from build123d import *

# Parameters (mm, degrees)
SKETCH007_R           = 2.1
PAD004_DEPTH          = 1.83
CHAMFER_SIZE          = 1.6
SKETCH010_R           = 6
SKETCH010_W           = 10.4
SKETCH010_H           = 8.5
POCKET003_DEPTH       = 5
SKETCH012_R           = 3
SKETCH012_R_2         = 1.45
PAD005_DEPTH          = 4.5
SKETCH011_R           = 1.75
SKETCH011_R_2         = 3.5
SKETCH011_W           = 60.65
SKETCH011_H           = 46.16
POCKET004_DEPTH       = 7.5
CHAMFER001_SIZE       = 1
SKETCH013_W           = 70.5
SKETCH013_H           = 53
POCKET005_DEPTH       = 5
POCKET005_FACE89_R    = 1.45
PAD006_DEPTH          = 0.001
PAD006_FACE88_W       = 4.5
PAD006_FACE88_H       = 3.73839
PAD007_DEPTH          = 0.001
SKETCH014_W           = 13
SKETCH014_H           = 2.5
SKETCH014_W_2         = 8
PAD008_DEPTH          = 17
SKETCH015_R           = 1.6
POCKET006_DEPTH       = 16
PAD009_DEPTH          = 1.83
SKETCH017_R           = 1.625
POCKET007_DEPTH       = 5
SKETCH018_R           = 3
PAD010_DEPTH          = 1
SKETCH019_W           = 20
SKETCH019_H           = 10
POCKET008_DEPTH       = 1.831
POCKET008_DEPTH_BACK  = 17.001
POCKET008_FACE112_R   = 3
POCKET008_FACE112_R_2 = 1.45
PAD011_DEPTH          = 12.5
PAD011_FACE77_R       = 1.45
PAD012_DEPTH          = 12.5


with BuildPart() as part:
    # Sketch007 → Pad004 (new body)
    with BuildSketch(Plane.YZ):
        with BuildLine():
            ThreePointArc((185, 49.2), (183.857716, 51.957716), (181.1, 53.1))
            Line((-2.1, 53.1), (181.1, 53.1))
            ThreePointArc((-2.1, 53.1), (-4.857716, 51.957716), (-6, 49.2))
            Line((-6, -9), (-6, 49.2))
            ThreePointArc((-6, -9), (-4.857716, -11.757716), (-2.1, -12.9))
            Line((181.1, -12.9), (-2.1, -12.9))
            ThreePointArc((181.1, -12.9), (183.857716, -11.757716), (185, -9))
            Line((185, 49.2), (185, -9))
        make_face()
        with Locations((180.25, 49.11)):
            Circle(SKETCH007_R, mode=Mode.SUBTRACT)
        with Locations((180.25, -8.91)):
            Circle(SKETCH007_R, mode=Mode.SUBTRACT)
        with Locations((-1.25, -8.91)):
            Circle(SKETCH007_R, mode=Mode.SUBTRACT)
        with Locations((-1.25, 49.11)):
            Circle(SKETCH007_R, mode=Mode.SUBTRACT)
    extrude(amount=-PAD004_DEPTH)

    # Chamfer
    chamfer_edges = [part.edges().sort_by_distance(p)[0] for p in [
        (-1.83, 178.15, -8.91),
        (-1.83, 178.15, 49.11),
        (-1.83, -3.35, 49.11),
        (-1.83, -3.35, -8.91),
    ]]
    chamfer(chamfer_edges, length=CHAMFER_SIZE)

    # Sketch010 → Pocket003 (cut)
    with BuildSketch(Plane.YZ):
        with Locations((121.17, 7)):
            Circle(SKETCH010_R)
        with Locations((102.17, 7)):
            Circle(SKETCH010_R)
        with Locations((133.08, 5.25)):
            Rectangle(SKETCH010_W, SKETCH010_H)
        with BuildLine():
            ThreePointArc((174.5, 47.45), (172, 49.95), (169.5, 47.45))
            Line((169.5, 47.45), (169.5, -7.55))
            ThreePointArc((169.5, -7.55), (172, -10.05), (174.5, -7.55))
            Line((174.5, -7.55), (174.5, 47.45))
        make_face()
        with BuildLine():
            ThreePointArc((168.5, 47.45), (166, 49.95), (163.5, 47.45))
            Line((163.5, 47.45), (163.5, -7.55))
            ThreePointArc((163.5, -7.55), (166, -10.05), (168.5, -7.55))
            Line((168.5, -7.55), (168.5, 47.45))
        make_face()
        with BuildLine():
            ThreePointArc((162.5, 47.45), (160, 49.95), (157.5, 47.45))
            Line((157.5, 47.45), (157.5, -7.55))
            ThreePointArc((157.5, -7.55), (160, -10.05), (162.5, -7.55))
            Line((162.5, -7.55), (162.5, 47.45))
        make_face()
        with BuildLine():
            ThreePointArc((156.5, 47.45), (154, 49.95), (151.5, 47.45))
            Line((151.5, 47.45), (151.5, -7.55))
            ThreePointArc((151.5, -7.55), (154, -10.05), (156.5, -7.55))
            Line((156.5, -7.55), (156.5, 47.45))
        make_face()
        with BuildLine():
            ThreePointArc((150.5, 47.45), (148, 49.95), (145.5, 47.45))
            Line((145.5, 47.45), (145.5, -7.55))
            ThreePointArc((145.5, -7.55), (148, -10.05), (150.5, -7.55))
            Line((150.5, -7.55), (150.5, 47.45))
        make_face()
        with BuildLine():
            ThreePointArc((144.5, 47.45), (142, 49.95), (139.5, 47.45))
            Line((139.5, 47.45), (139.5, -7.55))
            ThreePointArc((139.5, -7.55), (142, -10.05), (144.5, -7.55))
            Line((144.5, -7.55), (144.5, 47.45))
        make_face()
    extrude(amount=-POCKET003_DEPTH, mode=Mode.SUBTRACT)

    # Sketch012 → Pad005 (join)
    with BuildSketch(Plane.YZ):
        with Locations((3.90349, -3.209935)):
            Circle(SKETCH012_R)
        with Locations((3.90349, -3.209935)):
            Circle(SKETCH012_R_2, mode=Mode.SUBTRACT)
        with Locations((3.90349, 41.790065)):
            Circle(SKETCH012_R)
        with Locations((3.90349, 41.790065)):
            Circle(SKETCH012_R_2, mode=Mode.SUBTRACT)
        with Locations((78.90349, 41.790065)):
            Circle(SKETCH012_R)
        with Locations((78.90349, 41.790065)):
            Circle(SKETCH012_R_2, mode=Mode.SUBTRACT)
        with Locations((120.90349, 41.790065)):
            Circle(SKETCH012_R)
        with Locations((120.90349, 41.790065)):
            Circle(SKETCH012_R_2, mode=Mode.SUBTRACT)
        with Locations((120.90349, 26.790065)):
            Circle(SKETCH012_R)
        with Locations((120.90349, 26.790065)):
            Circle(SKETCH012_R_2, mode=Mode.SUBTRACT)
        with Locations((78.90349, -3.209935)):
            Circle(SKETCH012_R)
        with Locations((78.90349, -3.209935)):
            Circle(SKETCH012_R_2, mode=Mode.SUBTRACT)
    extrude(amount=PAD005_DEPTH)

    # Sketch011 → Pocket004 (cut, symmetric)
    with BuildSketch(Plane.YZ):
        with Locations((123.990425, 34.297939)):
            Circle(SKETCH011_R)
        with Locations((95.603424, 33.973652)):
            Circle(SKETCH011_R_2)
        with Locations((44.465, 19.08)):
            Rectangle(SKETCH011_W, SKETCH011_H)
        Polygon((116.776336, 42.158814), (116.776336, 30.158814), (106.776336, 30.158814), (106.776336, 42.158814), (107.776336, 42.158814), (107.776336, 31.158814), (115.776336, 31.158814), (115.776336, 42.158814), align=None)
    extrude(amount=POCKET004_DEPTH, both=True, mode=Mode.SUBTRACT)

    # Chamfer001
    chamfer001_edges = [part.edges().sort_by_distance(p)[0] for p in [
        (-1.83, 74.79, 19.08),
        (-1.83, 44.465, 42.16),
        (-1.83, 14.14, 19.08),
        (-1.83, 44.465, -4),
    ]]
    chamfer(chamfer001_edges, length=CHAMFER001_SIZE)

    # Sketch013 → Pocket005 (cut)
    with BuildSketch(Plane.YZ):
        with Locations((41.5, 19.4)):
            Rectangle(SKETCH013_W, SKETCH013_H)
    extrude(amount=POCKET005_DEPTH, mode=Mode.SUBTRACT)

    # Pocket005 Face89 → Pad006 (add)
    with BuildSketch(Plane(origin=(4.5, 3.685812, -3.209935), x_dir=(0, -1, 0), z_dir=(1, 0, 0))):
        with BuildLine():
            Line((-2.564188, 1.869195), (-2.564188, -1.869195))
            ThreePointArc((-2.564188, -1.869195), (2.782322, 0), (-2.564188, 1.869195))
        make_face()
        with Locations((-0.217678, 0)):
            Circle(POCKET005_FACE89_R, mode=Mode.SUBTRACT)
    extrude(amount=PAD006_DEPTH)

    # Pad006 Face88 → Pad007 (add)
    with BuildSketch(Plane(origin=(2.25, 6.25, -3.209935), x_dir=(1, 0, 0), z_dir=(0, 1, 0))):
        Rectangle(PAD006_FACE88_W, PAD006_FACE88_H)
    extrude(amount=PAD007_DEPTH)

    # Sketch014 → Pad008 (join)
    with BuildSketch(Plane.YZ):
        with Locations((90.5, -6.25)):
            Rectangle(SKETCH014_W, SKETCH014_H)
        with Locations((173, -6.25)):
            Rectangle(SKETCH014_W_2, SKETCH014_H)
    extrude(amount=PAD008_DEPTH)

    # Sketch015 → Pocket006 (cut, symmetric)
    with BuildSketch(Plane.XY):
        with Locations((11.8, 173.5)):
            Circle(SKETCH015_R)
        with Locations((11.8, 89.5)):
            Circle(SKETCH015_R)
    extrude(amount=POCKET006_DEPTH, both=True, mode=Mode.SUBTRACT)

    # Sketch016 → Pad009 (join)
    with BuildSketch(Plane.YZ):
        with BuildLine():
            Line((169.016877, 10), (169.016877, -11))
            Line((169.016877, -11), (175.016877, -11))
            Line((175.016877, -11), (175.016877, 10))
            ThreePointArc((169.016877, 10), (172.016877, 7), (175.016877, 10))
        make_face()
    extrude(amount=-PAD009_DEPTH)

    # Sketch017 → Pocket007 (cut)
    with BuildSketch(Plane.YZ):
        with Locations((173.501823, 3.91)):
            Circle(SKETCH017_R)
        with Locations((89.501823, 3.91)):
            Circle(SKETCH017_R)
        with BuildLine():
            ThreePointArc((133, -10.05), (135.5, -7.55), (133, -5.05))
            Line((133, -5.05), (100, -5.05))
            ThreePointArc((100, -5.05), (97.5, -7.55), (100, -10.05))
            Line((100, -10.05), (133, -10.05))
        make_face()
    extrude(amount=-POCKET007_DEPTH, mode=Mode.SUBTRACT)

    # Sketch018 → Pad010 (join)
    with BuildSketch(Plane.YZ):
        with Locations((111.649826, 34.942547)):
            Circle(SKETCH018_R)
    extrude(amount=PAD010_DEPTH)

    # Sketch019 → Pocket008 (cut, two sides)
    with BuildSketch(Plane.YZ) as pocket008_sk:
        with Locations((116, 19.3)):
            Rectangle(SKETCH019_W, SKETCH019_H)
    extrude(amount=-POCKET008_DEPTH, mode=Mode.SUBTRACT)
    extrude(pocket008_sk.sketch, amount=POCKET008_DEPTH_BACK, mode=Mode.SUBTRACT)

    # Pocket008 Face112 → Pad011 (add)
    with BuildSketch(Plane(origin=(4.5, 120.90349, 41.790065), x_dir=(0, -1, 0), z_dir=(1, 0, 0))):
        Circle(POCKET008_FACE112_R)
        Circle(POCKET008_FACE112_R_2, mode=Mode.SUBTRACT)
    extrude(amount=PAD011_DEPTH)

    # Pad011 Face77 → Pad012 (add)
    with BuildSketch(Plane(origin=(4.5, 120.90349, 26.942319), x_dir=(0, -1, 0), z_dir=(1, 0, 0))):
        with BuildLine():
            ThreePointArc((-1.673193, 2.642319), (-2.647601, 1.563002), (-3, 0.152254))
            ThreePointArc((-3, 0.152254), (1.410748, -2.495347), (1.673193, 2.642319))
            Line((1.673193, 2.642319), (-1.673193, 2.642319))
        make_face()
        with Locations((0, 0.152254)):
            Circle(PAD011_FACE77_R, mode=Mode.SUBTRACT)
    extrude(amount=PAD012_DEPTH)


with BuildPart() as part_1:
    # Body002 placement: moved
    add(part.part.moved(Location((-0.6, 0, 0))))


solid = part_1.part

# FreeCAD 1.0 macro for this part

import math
import FreeCAD as App
import Part
import Sketcher
from FreeCAD import Vector


def edges_at(feature, points):
    """Names of the edges that pass closest to the given points."""
    edges = feature.Shape.Edges
    near = lambda p: min(range(len(edges)), key=lambda i: edges[i].distToShape(Part.Vertex(*p))[0])
    return sorted({f"Edge{near(p) + 1}" for p in points})

doc = App.newDocument("Part")
body = doc.addObject("PartDesign::Body", "Body")

# Sketch on YZ plane
sketch1 = body.newObject("Sketcher::SketchObject", "Sketch")
sketch1.AttachmentSupport = (doc.getObject("YZ_Plane"), [""])
sketch1.MapMode = "FlatFace"
sketch1.addGeometry([
    Part.ArcOfCircle(Part.Circle(Vector(181.1, 49.2, 0), Vector(0, 0, 1), 3.9), math.radians(0), math.radians(90)),  # 0
    Part.LineSegment(Vector(181.1, 53.1, 0), Vector(-2.1, 53.1, 0)),  # 1
    Part.ArcOfCircle(Part.Circle(Vector(-2.1, 49.2, 0), Vector(0, 0, 1), 3.9), math.radians(90), math.radians(180)),  # 2
    Part.LineSegment(Vector(-6, 49.2, 0), Vector(-6, -9, 0)),  # 3
    Part.ArcOfCircle(Part.Circle(Vector(-2.1, -9, 0), Vector(0, 0, 1), 3.9), math.radians(-180), math.radians(-90)),  # 4
    Part.LineSegment(Vector(-2.1, -12.9, 0), Vector(181.1, -12.9, 0)),  # 5
    Part.ArcOfCircle(Part.Circle(Vector(181.1, -9, 0), Vector(0, 0, 1), 3.9), math.radians(-90), math.radians(0)),  # 6
    Part.LineSegment(Vector(185, -9, 0), Vector(185, 49.2, 0)),  # 7
    Part.Circle(Vector(-1.2, -8.9, 0), Vector(0, 0, 1), 2.1),  # 8
    Part.Circle(Vector(180.2, -8.9, 0), Vector(0, 0, 1), 2.1),  # 9
    Part.Circle(Vector(-1.2, 49.1, 0), Vector(0, 0, 1), 2.1),  # 10
    Part.Circle(Vector(180.2, 49.1, 0), Vector(0, 0, 1), 2.1),  # 11
], False)
sketch1.addConstraint([
    Sketcher.Constraint("Tangent", 0, 2, 1, 1),
    Sketcher.Constraint("Tangent", 1, 2, 2, 1),
    Sketcher.Constraint("Tangent", 2, 2, 3, 1),
    Sketcher.Constraint("Tangent", 3, 2, 4, 1),
    Sketcher.Constraint("Tangent", 4, 2, 5, 1),
    Sketcher.Constraint("Tangent", 5, 2, 6, 1),
    Sketcher.Constraint("Tangent", 6, 2, 7, 1),
    Sketcher.Constraint("Tangent", 7, 2, 0, 1),
    Sketcher.Constraint("Horizontal", 1),
    Sketcher.Constraint("Vertical", 3),
    Sketcher.Constraint("Horizontal", 5),
    Sketcher.Constraint("Vertical", 7),
    Sketcher.Constraint("Equal", 0, 2),
    Sketcher.Constraint("Equal", 2, 4),
    Sketcher.Constraint("Equal", 4, 6),
    Sketcher.Constraint("Equal", 8, 9),
    Sketcher.Constraint("Equal", 9, 10),
    Sketcher.Constraint("Equal", 10, 11),
    Sketcher.Constraint("Horizontal", 8, 3, 9, 3),
    Sketcher.Constraint("Horizontal", 10, 3, 11, 3),
    Sketcher.Constraint("Vertical", 8, 3, 10, 3),
    Sketcher.Constraint("Vertical", 9, 3, 11, 3),
    Sketcher.Constraint("Diameter", 8, 4.2),
    Sketcher.Constraint("Radius", 0, 3.900002),
    Sketcher.Constraint("DistanceX", 1, 2, 1, 1, 183.2),
    Sketcher.Constraint("DistanceY", 3, 2, 3, 1, 58.2),
    Sketcher.Constraint("DistanceY", 4, 3, -1, 1, 8.999998),
    Sketcher.Constraint("DistanceX", 2, 2, -1, 1, 6.0),
    Sketcher.Constraint("DistanceX", 8, 3, 9, 3, 181.5),
    Sketcher.Constraint("DistanceX", 8, 3, -1, 1, 1.25),
    Sketcher.Constraint("DistanceY", 8, 3, -1, 1, 8.91),
    Sketcher.Constraint("DistanceY", -1, 1, 10, 3, 49.11),
])
pad1 = body.newObject("PartDesign::Pad", "Pad")
pad1.Profile = sketch1
pad1.Length = 1.83
pad1.Reversed = True
doc.recompute()

chamfer = body.newObject("PartDesign::Chamfer", "Chamfer")
chamfer.Base = (pad1, edges_at(pad1, [
    (-1.83, 178.15, -8.91),
    (-1.83, 178.15, 49.11),
    (-1.83, -3.35, 49.11),
    (-1.83, -3.35, -8.91),
]))
chamfer.Size = 1.6

# Sketch on YZ plane
sketch2 = body.newObject("Sketcher::SketchObject", "Sketch001")
sketch2.AttachmentSupport = (doc.getObject("YZ_Plane"), [""])
sketch2.MapMode = "FlatFace"
sketch2.addGeometry([
    Part.Circle(Vector(121.2, 7, 0), Vector(0, 0, 1), 6),  # 0
    Part.Circle(Vector(102.2, 7, 0), Vector(0, 0, 1), 6),  # 1
    Part.LineSegment(Vector(127.9, 9.5, 0), Vector(127.9, 1, 0)),  # 2
    Part.LineSegment(Vector(127.9, 1, 0), Vector(138.3, 1, 0)),  # 3
    Part.LineSegment(Vector(138.3, 1, 0), Vector(138.3, 9.5, 0)),  # 4
    Part.LineSegment(Vector(138.3, 9.5, 0), Vector(127.9, 9.5, 0)),  # 5
    Part.ArcOfCircle(Part.Circle(Vector(172, 47.5, 0), Vector(0, 0, 1), 2.5), math.radians(0), math.radians(180)),  # 6
    Part.LineSegment(Vector(169.5, 47.5, 0), Vector(169.5, -7.5, 0)),  # 7
    Part.ArcOfCircle(Part.Circle(Vector(172, -7.5, 0), Vector(0, 0, 1), 2.5), math.radians(180), math.radians(360)),  # 8
    Part.LineSegment(Vector(174.5, -7.5, 0), Vector(174.5, 47.5, 0)),  # 9
    Part.ArcOfCircle(Part.Circle(Vector(166, 47.5, 0), Vector(0, 0, 1), 2.5), math.radians(0), math.radians(180)),  # 10
    Part.LineSegment(Vector(163.5, 47.5, 0), Vector(163.5, -7.5, 0)),  # 11
    Part.ArcOfCircle(Part.Circle(Vector(166, -7.5, 0), Vector(0, 0, 1), 2.5), math.radians(180), math.radians(360)),  # 12
    Part.LineSegment(Vector(168.5, -7.5, 0), Vector(168.5, 47.5, 0)),  # 13
    Part.ArcOfCircle(Part.Circle(Vector(160, 47.5, 0), Vector(0, 0, 1), 2.5), math.radians(0), math.radians(180)),  # 14
    Part.LineSegment(Vector(157.5, 47.5, 0), Vector(157.5, -7.5, 0)),  # 15
    Part.ArcOfCircle(Part.Circle(Vector(160, -7.5, 0), Vector(0, 0, 1), 2.5), math.radians(180), math.radians(360)),  # 16
    Part.LineSegment(Vector(162.5, -7.5, 0), Vector(162.5, 47.5, 0)),  # 17
    Part.ArcOfCircle(Part.Circle(Vector(154, 47.5, 0), Vector(0, 0, 1), 2.5), math.radians(0), math.radians(180)),  # 18
    Part.LineSegment(Vector(151.5, 47.5, 0), Vector(151.5, -7.5, 0)),  # 19
    Part.ArcOfCircle(Part.Circle(Vector(154, -7.5, 0), Vector(0, 0, 1), 2.5), math.radians(180), math.radians(360)),  # 20
    Part.LineSegment(Vector(156.5, -7.5, 0), Vector(156.5, 47.5, 0)),  # 21
    Part.ArcOfCircle(Part.Circle(Vector(148, 47.5, 0), Vector(0, 0, 1), 2.5), math.radians(0), math.radians(180)),  # 22
    Part.LineSegment(Vector(145.5, 47.5, 0), Vector(145.5, -7.5, 0)),  # 23
    Part.ArcOfCircle(Part.Circle(Vector(148, -7.5, 0), Vector(0, 0, 1), 2.5), math.radians(180), math.radians(360)),  # 24
    Part.LineSegment(Vector(150.5, -7.5, 0), Vector(150.5, 47.5, 0)),  # 25
    Part.ArcOfCircle(Part.Circle(Vector(142, 47.5, 0), Vector(0, 0, 1), 2.5), math.radians(0), math.radians(180)),  # 26
    Part.LineSegment(Vector(139.5, 47.5, 0), Vector(139.5, -7.5, 0)),  # 27
    Part.ArcOfCircle(Part.Circle(Vector(142, -7.5, 0), Vector(0, 0, 1), 2.5), math.radians(180), math.radians(360)),  # 28
    Part.LineSegment(Vector(144.5, -7.5, 0), Vector(144.5, 47.5, 0)),  # 29
], False)
sketch2.addConstraint([
    Sketcher.Constraint("Coincident", 2, 2, 3, 1),
    Sketcher.Constraint("Coincident", 3, 2, 4, 1),
    Sketcher.Constraint("Coincident", 4, 2, 5, 1),
    Sketcher.Constraint("Coincident", 5, 2, 2, 1),
    Sketcher.Constraint("Tangent", 6, 2, 7, 1),
    Sketcher.Constraint("Tangent", 7, 2, 8, 1),
    Sketcher.Constraint("Tangent", 8, 2, 9, 1),
    Sketcher.Constraint("Tangent", 9, 2, 6, 1),
    Sketcher.Constraint("Tangent", 10, 2, 11, 1),
    Sketcher.Constraint("Tangent", 11, 2, 12, 1),
    Sketcher.Constraint("Tangent", 12, 2, 13, 1),
    Sketcher.Constraint("Tangent", 13, 2, 10, 1),
    Sketcher.Constraint("Tangent", 14, 2, 15, 1),
    Sketcher.Constraint("Tangent", 15, 2, 16, 1),
    Sketcher.Constraint("Tangent", 16, 2, 17, 1),
    Sketcher.Constraint("Tangent", 17, 2, 14, 1),
    Sketcher.Constraint("Tangent", 18, 2, 19, 1),
    Sketcher.Constraint("Tangent", 19, 2, 20, 1),
    Sketcher.Constraint("Tangent", 20, 2, 21, 1),
    Sketcher.Constraint("Tangent", 21, 2, 18, 1),
    Sketcher.Constraint("Tangent", 22, 2, 23, 1),
    Sketcher.Constraint("Tangent", 23, 2, 24, 1),
    Sketcher.Constraint("Tangent", 24, 2, 25, 1),
    Sketcher.Constraint("Tangent", 25, 2, 22, 1),
    Sketcher.Constraint("Tangent", 26, 2, 27, 1),
    Sketcher.Constraint("Tangent", 27, 2, 28, 1),
    Sketcher.Constraint("Tangent", 28, 2, 29, 1),
    Sketcher.Constraint("Tangent", 29, 2, 26, 1),
    Sketcher.Constraint("Vertical", 2),
    Sketcher.Constraint("Horizontal", 3),
    Sketcher.Constraint("Vertical", 4),
    Sketcher.Constraint("Horizontal", 5),
    Sketcher.Constraint("Vertical", 7),
    Sketcher.Constraint("Vertical", 9),
    Sketcher.Constraint("Vertical", 11),
    Sketcher.Constraint("Vertical", 13),
    Sketcher.Constraint("Vertical", 15),
    Sketcher.Constraint("Vertical", 17),
    Sketcher.Constraint("Vertical", 19),
    Sketcher.Constraint("Vertical", 21),
    Sketcher.Constraint("Vertical", 23),
    Sketcher.Constraint("Vertical", 25),
    Sketcher.Constraint("Vertical", 27),
    Sketcher.Constraint("Vertical", 29),
    Sketcher.Constraint("Equal", 0, 1),
    Sketcher.Constraint("Equal", 8, 10),
    Sketcher.Constraint("Equal", 12, 14),
    Sketcher.Constraint("Equal", 16, 18),
    Sketcher.Constraint("Equal", 20, 22),
    Sketcher.Constraint("Equal", 24, 26),
    Sketcher.Constraint("Horizontal", 0, 3, 1, 3),
    Sketcher.Constraint("Horizontal", 6, 3, 10, 3),
    Sketcher.Constraint("Horizontal", 8, 3, 12, 3),
    Sketcher.Constraint("Horizontal", 10, 3, 14, 3),
    Sketcher.Constraint("Horizontal", 12, 3, 16, 3),
    Sketcher.Constraint("Horizontal", 14, 3, 18, 3),
    Sketcher.Constraint("Horizontal", 16, 3, 20, 3),
    Sketcher.Constraint("Horizontal", 18, 3, 22, 3),
    Sketcher.Constraint("Horizontal", 20, 3, 24, 3),
    Sketcher.Constraint("Horizontal", 22, 3, 26, 3),
    Sketcher.Constraint("Horizontal", 24, 3, 28, 3),
    Sketcher.Constraint("Diameter", 0, 12.0),
    Sketcher.Constraint("Radius", 6, 2.5),
    Sketcher.Constraint("DistanceY", 7, 2, 7, 1, 55.0),
    Sketcher.Constraint("DistanceX", 3, 1, 3, 2, 10.4),
    Sketcher.Constraint("DistanceY", 2, 2, 2, 1, 8.5),
    Sketcher.Constraint("DistanceY", -1, 1, 0, 3, 7.0),
    Sketcher.Constraint("DistanceX", -1, 1, 6, 3, 172.0),
    Sketcher.Constraint("DistanceX", -1, 1, 10, 3, 166.0),
    Sketcher.Constraint("DistanceX", -1, 1, 14, 3, 160.0),
    Sketcher.Constraint("DistanceX", -1, 1, 18, 3, 154.0),
    Sketcher.Constraint("DistanceX", -1, 1, 22, 3, 148.0),
    Sketcher.Constraint("DistanceX", -1, 1, 26, 3, 142.0),
    Sketcher.Constraint("DistanceY", -1, 1, 2, 2, 1.0),
    Sketcher.Constraint("DistanceX", 1, 3, 0, 3, 19.0),
    Sketcher.Constraint("DistanceX", -1, 1, 0, 3, 121.17),
    Sketcher.Constraint("DistanceY", -1, 1, 6, 3, 47.45),
    Sketcher.Constraint("DistanceX", -1, 1, 2, 2, 127.88),
])
pocket1 = body.newObject("PartDesign::Pocket", "Pocket")
pocket1.Profile = sketch2
pocket1.Length = 5

# Sketch on YZ plane
sketch3 = body.newObject("Sketcher::SketchObject", "Sketch002")
sketch3.AttachmentSupport = (doc.getObject("YZ_Plane"), [""])
sketch3.MapMode = "FlatFace"
sketch3.addGeometry([
    Part.Circle(Vector(3.9, -3.2, 0), Vector(0, 0, 1), 3),  # 0
    Part.Circle(Vector(3.9, -3.2, 0), Vector(0, 0, 1), 1.4),  # 1
    Part.Circle(Vector(3.9, 41.8, 0), Vector(0, 0, 1), 3),  # 2
    Part.Circle(Vector(3.9, 41.8, 0), Vector(0, 0, 1), 1.4),  # 3
    Part.Circle(Vector(78.9, 41.8, 0), Vector(0, 0, 1), 3),  # 4
    Part.Circle(Vector(78.9, 41.8, 0), Vector(0, 0, 1), 1.4),  # 5
    Part.Circle(Vector(120.9, 41.8, 0), Vector(0, 0, 1), 3),  # 6
    Part.Circle(Vector(120.9, 41.8, 0), Vector(0, 0, 1), 1.4),  # 7
    Part.Circle(Vector(120.9, 26.8, 0), Vector(0, 0, 1), 3),  # 8
    Part.Circle(Vector(120.9, 26.8, 0), Vector(0, 0, 1), 1.4),  # 9
    Part.Circle(Vector(78.9, -3.2, 0), Vector(0, 0, 1), 3),  # 10
    Part.Circle(Vector(78.9, -3.2, 0), Vector(0, 0, 1), 1.4),  # 11
], False)
sketch3.addConstraint([
    Sketcher.Constraint("Coincident", 1, 3, 0, 3),
    Sketcher.Constraint("Coincident", 3, 3, 2, 3),
    Sketcher.Constraint("Coincident", 5, 3, 4, 3),
    Sketcher.Constraint("Coincident", 7, 3, 6, 3),
    Sketcher.Constraint("Coincident", 9, 3, 8, 3),
    Sketcher.Constraint("Coincident", 11, 3, 10, 3),
    Sketcher.Constraint("Equal", 0, 2),
    Sketcher.Constraint("Equal", 1, 3),
    Sketcher.Constraint("Equal", 2, 4),
    Sketcher.Constraint("Equal", 3, 5),
    Sketcher.Constraint("Equal", 4, 6),
    Sketcher.Constraint("Equal", 5, 7),
    Sketcher.Constraint("Equal", 6, 8),
    Sketcher.Constraint("Equal", 7, 9),
    Sketcher.Constraint("Equal", 8, 10),
    Sketcher.Constraint("Equal", 9, 11),
    Sketcher.Constraint("Horizontal", 3, 3, 4, 3),
    Sketcher.Constraint("Horizontal", 5, 3, 6, 3),
    Sketcher.Constraint("Horizontal", 1, 3, 10, 3),
    Sketcher.Constraint("Vertical", 1, 3, 2, 3),
    Sketcher.Constraint("Vertical", 7, 3, 8, 3),
    Sketcher.Constraint("Vertical", 5, 3, 10, 3),
    Sketcher.Constraint("Diameter", 0, 6.0),
    Sketcher.Constraint("Diameter", 1, 2.9),
    Sketcher.Constraint("DistanceY", 0, 3, 2, 3, 45.0),
    Sketcher.Constraint("DistanceX", 2, 3, 4, 3, 75.0),
    Sketcher.Constraint("DistanceX", 4, 3, 6, 3, 42.0),
    Sketcher.Constraint("DistanceY", 8, 3, 6, 3, 15.0),
    Sketcher.Constraint("DistanceX", -1, 1, 0, 3, 3.90349),
    Sketcher.Constraint("DistanceY", 0, 3, -1, 1, 3.209935),
])
pad2 = body.newObject("PartDesign::Pad", "Pad001")
pad2.Profile = sketch3
pad2.Length = 4.5

# Sketch on YZ plane
sketch4 = body.newObject("Sketcher::SketchObject", "Sketch003")
sketch4.AttachmentSupport = (doc.getObject("YZ_Plane"), [""])
sketch4.MapMode = "FlatFace"
sketch4.addGeometry([
    Part.Circle(Vector(124, 34.3, 0), Vector(0, 0, 1), 1.8),  # 0
    Part.Circle(Vector(95.6, 34, 0), Vector(0, 0, 1), 3.5),  # 1
    Part.LineSegment(Vector(14.1, 42.2, 0), Vector(14.1, -4, 0)),  # 2
    Part.LineSegment(Vector(14.1, -4, 0), Vector(74.8, -4, 0)),  # 3
    Part.LineSegment(Vector(74.8, -4, 0), Vector(74.8, 42.2, 0)),  # 4
    Part.LineSegment(Vector(74.8, 42.2, 0), Vector(14.1, 42.2, 0)),  # 5
    Part.LineSegment(Vector(116.8, 30.2, 0), Vector(116.8, 42.2, 0)),  # 6
    Part.LineSegment(Vector(116.8, 42.2, 0), Vector(115.8, 42.2, 0)),  # 7
    Part.LineSegment(Vector(115.8, 42.2, 0), Vector(115.8, 31.2, 0)),  # 8
    Part.LineSegment(Vector(115.8, 31.2, 0), Vector(107.8, 31.2, 0)),  # 9
    Part.LineSegment(Vector(107.8, 31.2, 0), Vector(107.8, 42.2, 0)),  # 10
    Part.LineSegment(Vector(107.8, 42.2, 0), Vector(106.8, 42.2, 0)),  # 11
    Part.LineSegment(Vector(106.8, 42.2, 0), Vector(106.8, 30.2, 0)),  # 12
    Part.LineSegment(Vector(106.8, 30.2, 0), Vector(116.8, 30.2, 0)),  # 13
], False)
sketch4.addConstraint([
    Sketcher.Constraint("Coincident", 2, 2, 3, 1),
    Sketcher.Constraint("Coincident", 3, 2, 4, 1),
    Sketcher.Constraint("Coincident", 4, 2, 5, 1),
    Sketcher.Constraint("Coincident", 5, 2, 2, 1),
    Sketcher.Constraint("Coincident", 6, 2, 7, 1),
    Sketcher.Constraint("Coincident", 7, 2, 8, 1),
    Sketcher.Constraint("Coincident", 8, 2, 9, 1),
    Sketcher.Constraint("Coincident", 9, 2, 10, 1),
    Sketcher.Constraint("Coincident", 10, 2, 11, 1),
    Sketcher.Constraint("Coincident", 11, 2, 12, 1),
    Sketcher.Constraint("Coincident", 12, 2, 13, 1),
    Sketcher.Constraint("Coincident", 13, 2, 6, 1),
    Sketcher.Constraint("Vertical", 2),
    Sketcher.Constraint("Horizontal", 3),
    Sketcher.Constraint("Vertical", 4),
    Sketcher.Constraint("Horizontal", 5),
    Sketcher.Constraint("Vertical", 6),
    Sketcher.Constraint("Horizontal", 7),
    Sketcher.Constraint("Vertical", 8),
    Sketcher.Constraint("Horizontal", 9),
    Sketcher.Constraint("Vertical", 10),
    Sketcher.Constraint("Horizontal", 11),
    Sketcher.Constraint("Vertical", 12),
    Sketcher.Constraint("Horizontal", 13),
    Sketcher.Constraint("Horizontal", 7, 2, 10, 2),
    Sketcher.Constraint("Equal", 7, 11),
    Sketcher.Constraint("Diameter", 1, 7.0),
    Sketcher.Constraint("Diameter", 0, 3.5),
    Sketcher.Constraint("DistanceX", 7, 2, 7, 1, 1.0),
    Sketcher.Constraint("DistanceX", 9, 2, 9, 1, 8.0),
    Sketcher.Constraint("DistanceY", 6, 1, 6, 2, 12.0),
    Sketcher.Constraint("DistanceY", 8, 2, 8, 1, 11.0),
    Sketcher.Constraint("DistanceY", 2, 2, -1, 1, 4.0),
    Sketcher.Constraint("DistanceX", 3, 1, 3, 2, 60.65),
    Sketcher.Constraint("DistanceY", 2, 2, 2, 1, 46.16),
    Sketcher.Constraint("DistanceX", -1, 1, 2, 2, 14.14),
    Sketcher.Constraint("DistanceX", 1, 3, 0, 3, 28.387001),
    Sketcher.Constraint("DistanceY", -1, 1, 0, 3, 34.297939),
    Sketcher.Constraint("DistanceX", 6, 2, 0, 3, 7.214089),
    Sketcher.Constraint("DistanceY", 1, 3, 6, 2, 8.185162),
    Sketcher.Constraint("DistanceX", -1, 1, 0, 3, 123.990425),
    Sketcher.Constraint("DistanceY", -1, 1, 1, 3, 33.973652),
])
pocket2 = body.newObject("PartDesign::Pocket", "Pocket001")
pocket2.Profile = sketch4
pocket2.Length = 15
pocket2.Midplane = True
doc.recompute()

chamfer2 = body.newObject("PartDesign::Chamfer", "Chamfer001")
chamfer2.Base = (pocket2, edges_at(pocket2, [
    (-1.83, 74.79, 19.08),
    (-1.83, 44.465, 42.16),
    (-1.83, 14.14, 19.08),
    (-1.83, 44.465, -4),
]))
chamfer2.Size = 1

# Sketch on YZ plane
sketch5 = body.newObject("Sketcher::SketchObject", "Sketch004")
sketch5.AttachmentSupport = (doc.getObject("YZ_Plane"), [""])
sketch5.MapMode = "FlatFace"
sketch5.addGeometry([
    Part.LineSegment(Vector(6, 46, 0), Vector(6, -7, 0)),
    Part.LineSegment(Vector(6, -7, 0), Vector(77, -7, 0)),
    Part.LineSegment(Vector(77, -7, 0), Vector(77, 46, 0)),
    Part.LineSegment(Vector(77, 46, 0), Vector(6, 46, 0)),
], False)
sketch5.addConstraint([
    Sketcher.Constraint("Coincident", 0, 2, 1, 1),
    Sketcher.Constraint("Coincident", 1, 2, 2, 1),
    Sketcher.Constraint("Coincident", 2, 2, 3, 1),
    Sketcher.Constraint("Coincident", 3, 2, 0, 1),
    Sketcher.Constraint("Vertical", 0),
    Sketcher.Constraint("Horizontal", 1),
    Sketcher.Constraint("Vertical", 2),
    Sketcher.Constraint("Horizontal", 3),
    Sketcher.Constraint("DistanceY", 0, 2, 0, 1, 53.0),
    Sketcher.Constraint("DistanceX", 1, 1, 1, 2, 70.5),
    Sketcher.Constraint("DistanceY", 0, 2, -1, 1, 7.1),
    Sketcher.Constraint("DistanceX", -1, 1, 0, 2, 6.25),
])
pocket3 = body.newObject("PartDesign::Pocket", "Pocket002")
pocket3.Profile = sketch5
pocket3.Length = 5
pocket3.Reversed = True

# Sketch on YZ plane
sketch6 = body.newObject("Sketcher::SketchObject", "Sketch005")
sketch6.AttachmentSupport = (doc.getObject("YZ_Plane"), [""])
sketch6.MapMode = "FlatFace"
sketch6.AttachmentOffset = App.Placement(Vector(0, 0, 4.5), App.Rotation())
sketch6.addGeometry([
    Part.LineSegment(Vector(6.2, -5.1, 0), Vector(6.2, -1.3, 0)),
    Part.ArcOfCircle(Part.Circle(Vector(3.9, -3.2, 0), Vector(0, 0, 1), 3), math.radians(39), math.radians(321)),
    Part.Circle(Vector(3.9, -3.2, 0), Vector(0, 0, 1), 1.4),
], False)
sketch6.addConstraint([
    Sketcher.Constraint("Coincident", 0, 1, 1, 2),
    Sketcher.Constraint("Coincident", 1, 1, 0, 2),
    Sketcher.Constraint("Vertical", 0),
    Sketcher.Constraint("Coincident", 2, 3, 1, 3),
    Sketcher.Constraint("Radius", 1, 3.0),
    Sketcher.Constraint("Diameter", 2, 2.9),
    Sketcher.Constraint("DistanceX", -1, 1, 0, 1, 6.25),
    Sketcher.Constraint("DistanceY", 0, 1, 0, 2, 3.73839),
    Sketcher.Constraint("DistanceY", 0, 1, -1, 1, 5.07913),
])
pad3 = body.newObject("PartDesign::Pad", "Pad002")
pad3.Profile = sketch6
pad3.Length = 0.001

# Sketch on XZ plane
sketch7 = body.newObject("Sketcher::SketchObject", "Sketch006")
sketch7.AttachmentSupport = (doc.getObject("XZ_Plane"), [""])
sketch7.MapMode = "FlatFace"
sketch7.AttachmentOffset = App.Placement(Vector(0, 0, -6.25), App.Rotation())
sketch7.addGeometry([
    Part.LineSegment(Vector(0, -5.1, 0), Vector(0, -1.3, 0)),
    Part.LineSegment(Vector(0, -1.3, 0), Vector(4.5, -1.3, 0)),
    Part.LineSegment(Vector(4.5, -1.3, 0), Vector(4.5, -5.1, 0)),
    Part.LineSegment(Vector(4.5, -5.1, 0), Vector(0, -5.1, 0)),
], False)
sketch7.addConstraint([
    Sketcher.Constraint("Coincident", 0, 2, 1, 1),
    Sketcher.Constraint("Coincident", 1, 2, 2, 1),
    Sketcher.Constraint("Coincident", 2, 2, 3, 1),
    Sketcher.Constraint("Coincident", 3, 2, 0, 1),
    Sketcher.Constraint("Vertical", 0),
    Sketcher.Constraint("Horizontal", 1),
    Sketcher.Constraint("Vertical", 2),
    Sketcher.Constraint("Horizontal", 3),
    Sketcher.Constraint("PointOnObject", 0, 2, -2),
    Sketcher.Constraint("DistanceX", 1, 1, 1, 2, 4.5),
    Sketcher.Constraint("DistanceY", 0, 1, 0, 2, 3.73839),
    Sketcher.Constraint("DistanceY", 0, 2, -1, 1, 1.34074),
])
pad4 = body.newObject("PartDesign::Pad", "Pad003")
pad4.Profile = sketch7
pad4.Length = 0.001
pad4.Reversed = True

# Sketch on YZ plane
sketch8 = body.newObject("Sketcher::SketchObject", "Sketch007")
sketch8.AttachmentSupport = (doc.getObject("YZ_Plane"), [""])
sketch8.MapMode = "FlatFace"
sketch8.addGeometry([
    Part.LineSegment(Vector(84, -5, 0), Vector(84, -7.5, 0)),  # 0
    Part.LineSegment(Vector(84, -7.5, 0), Vector(97, -7.5, 0)),  # 1
    Part.LineSegment(Vector(97, -7.5, 0), Vector(97, -5, 0)),  # 2
    Part.LineSegment(Vector(97, -5, 0), Vector(84, -5, 0)),  # 3
    Part.LineSegment(Vector(169, -5, 0), Vector(169, -7.5, 0)),  # 4
    Part.LineSegment(Vector(169, -7.5, 0), Vector(177, -7.5, 0)),  # 5
    Part.LineSegment(Vector(177, -7.5, 0), Vector(177, -5, 0)),  # 6
    Part.LineSegment(Vector(177, -5, 0), Vector(169, -5, 0)),  # 7
], False)
sketch8.addConstraint([
    Sketcher.Constraint("Coincident", 0, 2, 1, 1),
    Sketcher.Constraint("Coincident", 1, 2, 2, 1),
    Sketcher.Constraint("Coincident", 2, 2, 3, 1),
    Sketcher.Constraint("Coincident", 3, 2, 0, 1),
    Sketcher.Constraint("Coincident", 4, 2, 5, 1),
    Sketcher.Constraint("Coincident", 5, 2, 6, 1),
    Sketcher.Constraint("Coincident", 6, 2, 7, 1),
    Sketcher.Constraint("Coincident", 7, 2, 4, 1),
    Sketcher.Constraint("Vertical", 0),
    Sketcher.Constraint("Horizontal", 1),
    Sketcher.Constraint("Vertical", 2),
    Sketcher.Constraint("Horizontal", 3),
    Sketcher.Constraint("Vertical", 4),
    Sketcher.Constraint("Horizontal", 5),
    Sketcher.Constraint("Vertical", 6),
    Sketcher.Constraint("Horizontal", 7),
    Sketcher.Constraint("Horizontal", 1, 2, 4, 2),
    Sketcher.Constraint("Horizontal", 3, 2, 6, 2),
    Sketcher.Constraint("DistanceX", 1, 1, 1, 2, 13.0),
    Sketcher.Constraint("DistanceX", 5, 1, 5, 2, 8.0),
    Sketcher.Constraint("DistanceY", 0, 2, 0, 1, 2.5),
    Sketcher.Constraint("DistanceX", -1, 1, 0, 2, 84.0),
    Sketcher.Constraint("DistanceY", 2, 2, -1, 1, 5.0),
    Sketcher.Constraint("DistanceX", -1, 1, 4, 2, 169.0),
])
pad5 = body.newObject("PartDesign::Pad", "Pad004")
pad5.Profile = sketch8
pad5.Length = 17

# Sketch on XY plane
sketch9 = body.newObject("Sketcher::SketchObject", "Sketch008")
sketch9.AttachmentSupport = (doc.getObject("XY_Plane"), [""])
sketch9.MapMode = "FlatFace"
sketch9.addGeometry([
    Part.Circle(Vector(11.8, 173.5, 0), Vector(0, 0, 1), 1.6),
    Part.Circle(Vector(11.8, 89.5, 0), Vector(0, 0, 1), 1.6),
], False)
sketch9.addConstraint([
    Sketcher.Constraint("Equal", 0, 1),
    Sketcher.Constraint("Vertical", 0, 3, 1, 3),
    Sketcher.Constraint("Diameter", 0, 3.2),
    Sketcher.Constraint("DistanceY", 1, 3, 0, 3, 84.0),
    Sketcher.Constraint("DistanceX", -1, 1, 0, 3, 11.8),
    Sketcher.Constraint("DistanceY", -1, 1, 0, 3, 173.5),
])
pocket4 = body.newObject("PartDesign::Pocket", "Pocket003")
pocket4.Profile = sketch9
pocket4.Length = 32
pocket4.Midplane = True

# Sketch on YZ plane
sketch10 = body.newObject("Sketcher::SketchObject", "Sketch009")
sketch10.AttachmentSupport = (doc.getObject("YZ_Plane"), [""])
sketch10.MapMode = "FlatFace"
sketch10.addGeometry([
    Part.LineSegment(Vector(169, 10, 0), Vector(169, -11, 0)),
    Part.LineSegment(Vector(169, -11, 0), Vector(175, -11, 0)),
    Part.LineSegment(Vector(175, -11, 0), Vector(175, 10, 0)),
    Part.ArcOfCircle(Part.Circle(Vector(172, 10, 0), Vector(0, 0, 1), 3), math.radians(180), math.radians(360)),
], False)
sketch10.addConstraint([
    Sketcher.Constraint("Coincident", 0, 2, 1, 1),
    Sketcher.Constraint("Coincident", 1, 2, 2, 1),
    Sketcher.Constraint("Tangent", 2, 2, 3, 2),
    Sketcher.Constraint("Tangent", 3, 1, 0, 1),
    Sketcher.Constraint("Vertical", 0),
    Sketcher.Constraint("Horizontal", 1),
    Sketcher.Constraint("Vertical", 2),
    Sketcher.Constraint("Radius", 3, 3.0),
    Sketcher.Constraint("DistanceY", 0, 2, 0, 1, 21.0),
    Sketcher.Constraint("DistanceY", -1, 1, 3, 3, 10.0),
    Sketcher.Constraint("DistanceX", -1, 1, 3, 3, 172.016877),
])
pad6 = body.newObject("PartDesign::Pad", "Pad005")
pad6.Profile = sketch10
pad6.Length = 1.83
pad6.Reversed = True

# Sketch on YZ plane
sketch11 = body.newObject("Sketcher::SketchObject", "Sketch010")
sketch11.AttachmentSupport = (doc.getObject("YZ_Plane"), [""])
sketch11.MapMode = "FlatFace"
sketch11.addGeometry([
    Part.Circle(Vector(173.5, 3.9, 0), Vector(0, 0, 1), 1.6),  # 0
    Part.Circle(Vector(89.5, 3.9, 0), Vector(0, 0, 1), 1.6),  # 1
    Part.ArcOfCircle(Part.Circle(Vector(133, -7.5, 0), Vector(0, 0, 1), 2.5), math.radians(-90), math.radians(90)),  # 2
    Part.LineSegment(Vector(133, -5, 0), Vector(100, -5, 0)),  # 3
    Part.ArcOfCircle(Part.Circle(Vector(100, -7.5, 0), Vector(0, 0, 1), 2.5), math.radians(90), math.radians(270)),  # 4
    Part.LineSegment(Vector(100, -10.1, 0), Vector(133, -10.1, 0)),  # 5
], False)
sketch11.addConstraint([
    Sketcher.Constraint("Tangent", 2, 2, 3, 1),
    Sketcher.Constraint("Tangent", 3, 2, 4, 1),
    Sketcher.Constraint("Tangent", 4, 2, 5, 1),
    Sketcher.Constraint("Tangent", 5, 2, 2, 1),
    Sketcher.Constraint("Horizontal", 3),
    Sketcher.Constraint("Horizontal", 5),
    Sketcher.Constraint("Equal", 0, 1),
    Sketcher.Constraint("Horizontal", 0, 3, 1, 3),
    Sketcher.Constraint("Radius", 2, 2.5),
    Sketcher.Constraint("Diameter", 0, 3.25),
    Sketcher.Constraint("DistanceX", 3, 2, 3, 1, 33.0),
    Sketcher.Constraint("DistanceX", -1, 1, 2, 3, 133.0),
    Sketcher.Constraint("DistanceX", 1, 3, 0, 3, 84.0),
    Sketcher.Constraint("DistanceY", -1, 1, 0, 3, 3.91),
    Sketcher.Constraint("DistanceY", 2, 3, -1, 1, 7.55),
    Sketcher.Constraint("DistanceX", -1, 1, 0, 3, 173.501823),
])
pocket5 = body.newObject("PartDesign::Pocket", "Pocket004")
pocket5.Profile = sketch11
pocket5.Length = 5

# Sketch on YZ plane
sketch12 = body.newObject("Sketcher::SketchObject", "Sketch011")
sketch12.AttachmentSupport = (doc.getObject("YZ_Plane"), [""])
sketch12.MapMode = "FlatFace"
sketch12.addGeometry(Part.Circle(Vector(111.6, 34.9, 0), Vector(0, 0, 1), 3), False)
sketch12.addConstraint([
    Sketcher.Constraint("Diameter", 0, 6.0),
    Sketcher.Constraint("DistanceX", -1, 1, 0, 3, 111.649826),
    Sketcher.Constraint("DistanceY", -1, 1, 0, 3, 34.942547),
])
pad7 = body.newObject("PartDesign::Pad", "Pad006")
pad7.Profile = sketch12
pad7.Length = 1

# Sketch on YZ plane
sketch13 = body.newObject("Sketcher::SketchObject", "Sketch012")
sketch13.AttachmentSupport = (doc.getObject("YZ_Plane"), [""])
sketch13.MapMode = "FlatFace"
sketch13.addGeometry([
    Part.LineSegment(Vector(106, 24, 0), Vector(106, 14, 0)),
    Part.LineSegment(Vector(106, 14, 0), Vector(126, 14, 0)),
    Part.LineSegment(Vector(126, 14, 0), Vector(126, 24, 0)),
    Part.LineSegment(Vector(126, 24, 0), Vector(106, 24, 0)),
], False)
sketch13.addConstraint([
    Sketcher.Constraint("Coincident", 0, 2, 1, 1),
    Sketcher.Constraint("Coincident", 1, 2, 2, 1),
    Sketcher.Constraint("Coincident", 2, 2, 3, 1),
    Sketcher.Constraint("Coincident", 3, 2, 0, 1),
    Sketcher.Constraint("Vertical", 0),
    Sketcher.Constraint("Horizontal", 1),
    Sketcher.Constraint("Vertical", 2),
    Sketcher.Constraint("Horizontal", 3),
    Sketcher.Constraint("DistanceX", 1, 1, 1, 2, 20.0),
    Sketcher.Constraint("DistanceY", 0, 2, 0, 1, 10.0),
    Sketcher.Constraint("DistanceX", -1, 1, 0, 2, 106.0),
    Sketcher.Constraint("DistanceY", -1, 1, 0, 2, 14.3),
])
pocket6 = body.newObject("PartDesign::Pocket", "Pocket005")
pocket6.Profile = sketch13
pocket6.Type = "ThroughAll"
pocket6.Midplane = True

# Sketch on YZ plane
sketch14 = body.newObject("Sketcher::SketchObject", "Sketch013")
sketch14.AttachmentSupport = (doc.getObject("YZ_Plane"), [""])
sketch14.MapMode = "FlatFace"
sketch14.AttachmentOffset = App.Placement(Vector(0, 0, 4.5), App.Rotation())
sketch14.addGeometry([
    Part.Circle(Vector(120.9, 41.8, 0), Vector(0, 0, 1), 3),
    Part.Circle(Vector(120.9, 41.8, 0), Vector(0, 0, 1), 1.4),
], False)
sketch14.addConstraint([
    Sketcher.Constraint("Coincident", 1, 3, 0, 3),
    Sketcher.Constraint("Diameter", 0, 6.0),
    Sketcher.Constraint("Diameter", 1, 2.9),
    Sketcher.Constraint("DistanceX", -1, 1, 0, 3, 120.90349),
    Sketcher.Constraint("DistanceY", -1, 1, 0, 3, 41.790065),
])
pad8 = body.newObject("PartDesign::Pad", "Pad007")
pad8.Profile = sketch14
pad8.Length = 12.5

# Sketch on YZ plane
sketch15 = body.newObject("Sketcher::SketchObject", "Sketch014")
sketch15.AttachmentSupport = (doc.getObject("YZ_Plane"), [""])
sketch15.MapMode = "FlatFace"
sketch15.AttachmentOffset = App.Placement(Vector(0, 0, 4.5), App.Rotation())
sketch15.addGeometry([
    Part.ArcOfCircle(Part.Circle(Vector(120.9, 26.8, 0), Vector(0, 0, 1), 3), math.radians(-56), math.radians(0)),
    Part.ArcOfCircle(Part.Circle(Vector(120.9, 26.8, 0), Vector(0, 0, 1), 3), math.radians(0), math.radians(236)),
    Part.LineSegment(Vector(119.2, 24.3, 0), Vector(122.6, 24.3, 0)),
    Part.Circle(Vector(120.9, 26.8, 0), Vector(0, 0, 1), 1.4),
], False)
sketch15.addConstraint([
    Sketcher.Constraint("Tangent", 0, 2, 1, 1),
    Sketcher.Constraint("Coincident", 1, 2, 2, 1),
    Sketcher.Constraint("Coincident", 2, 2, 0, 1),
    Sketcher.Constraint("Horizontal", 2),
    Sketcher.Constraint("Coincident", 3, 3, 0, 3),
    Sketcher.Constraint("Horizontal", 3, 3, 0, 2),
    Sketcher.Constraint("Radius", 1, 3.0),
    Sketcher.Constraint("Diameter", 3, 2.9),
    Sketcher.Constraint("DistanceX", 3, 3, 0, 2, 3.0),
    Sketcher.Constraint("DistanceY", -1, 1, 1, 2, 24.3),
    Sketcher.Constraint("DistanceX", 2, 1, 2, 2, 3.346386),
    Sketcher.Constraint("DistanceX", -1, 1, 1, 3, 120.90349),
])
pad9 = body.newObject("PartDesign::Pad", "Pad008")
pad9.Profile = sketch15
pad9.Length = 12.5
body2 = doc.addObject("PartDesign::Body", "Body001")
doc.recompute()

body.Placement = App.Placement(Vector(-0.6, 0, 0), App.Rotation(Vector(0, 0, 1), 0))
boolean = body2.newObject("PartDesign::Boolean", "Boolean")
boolean.Type = "Fuse"
boolean.addObjects([body])

doc.recompute()
